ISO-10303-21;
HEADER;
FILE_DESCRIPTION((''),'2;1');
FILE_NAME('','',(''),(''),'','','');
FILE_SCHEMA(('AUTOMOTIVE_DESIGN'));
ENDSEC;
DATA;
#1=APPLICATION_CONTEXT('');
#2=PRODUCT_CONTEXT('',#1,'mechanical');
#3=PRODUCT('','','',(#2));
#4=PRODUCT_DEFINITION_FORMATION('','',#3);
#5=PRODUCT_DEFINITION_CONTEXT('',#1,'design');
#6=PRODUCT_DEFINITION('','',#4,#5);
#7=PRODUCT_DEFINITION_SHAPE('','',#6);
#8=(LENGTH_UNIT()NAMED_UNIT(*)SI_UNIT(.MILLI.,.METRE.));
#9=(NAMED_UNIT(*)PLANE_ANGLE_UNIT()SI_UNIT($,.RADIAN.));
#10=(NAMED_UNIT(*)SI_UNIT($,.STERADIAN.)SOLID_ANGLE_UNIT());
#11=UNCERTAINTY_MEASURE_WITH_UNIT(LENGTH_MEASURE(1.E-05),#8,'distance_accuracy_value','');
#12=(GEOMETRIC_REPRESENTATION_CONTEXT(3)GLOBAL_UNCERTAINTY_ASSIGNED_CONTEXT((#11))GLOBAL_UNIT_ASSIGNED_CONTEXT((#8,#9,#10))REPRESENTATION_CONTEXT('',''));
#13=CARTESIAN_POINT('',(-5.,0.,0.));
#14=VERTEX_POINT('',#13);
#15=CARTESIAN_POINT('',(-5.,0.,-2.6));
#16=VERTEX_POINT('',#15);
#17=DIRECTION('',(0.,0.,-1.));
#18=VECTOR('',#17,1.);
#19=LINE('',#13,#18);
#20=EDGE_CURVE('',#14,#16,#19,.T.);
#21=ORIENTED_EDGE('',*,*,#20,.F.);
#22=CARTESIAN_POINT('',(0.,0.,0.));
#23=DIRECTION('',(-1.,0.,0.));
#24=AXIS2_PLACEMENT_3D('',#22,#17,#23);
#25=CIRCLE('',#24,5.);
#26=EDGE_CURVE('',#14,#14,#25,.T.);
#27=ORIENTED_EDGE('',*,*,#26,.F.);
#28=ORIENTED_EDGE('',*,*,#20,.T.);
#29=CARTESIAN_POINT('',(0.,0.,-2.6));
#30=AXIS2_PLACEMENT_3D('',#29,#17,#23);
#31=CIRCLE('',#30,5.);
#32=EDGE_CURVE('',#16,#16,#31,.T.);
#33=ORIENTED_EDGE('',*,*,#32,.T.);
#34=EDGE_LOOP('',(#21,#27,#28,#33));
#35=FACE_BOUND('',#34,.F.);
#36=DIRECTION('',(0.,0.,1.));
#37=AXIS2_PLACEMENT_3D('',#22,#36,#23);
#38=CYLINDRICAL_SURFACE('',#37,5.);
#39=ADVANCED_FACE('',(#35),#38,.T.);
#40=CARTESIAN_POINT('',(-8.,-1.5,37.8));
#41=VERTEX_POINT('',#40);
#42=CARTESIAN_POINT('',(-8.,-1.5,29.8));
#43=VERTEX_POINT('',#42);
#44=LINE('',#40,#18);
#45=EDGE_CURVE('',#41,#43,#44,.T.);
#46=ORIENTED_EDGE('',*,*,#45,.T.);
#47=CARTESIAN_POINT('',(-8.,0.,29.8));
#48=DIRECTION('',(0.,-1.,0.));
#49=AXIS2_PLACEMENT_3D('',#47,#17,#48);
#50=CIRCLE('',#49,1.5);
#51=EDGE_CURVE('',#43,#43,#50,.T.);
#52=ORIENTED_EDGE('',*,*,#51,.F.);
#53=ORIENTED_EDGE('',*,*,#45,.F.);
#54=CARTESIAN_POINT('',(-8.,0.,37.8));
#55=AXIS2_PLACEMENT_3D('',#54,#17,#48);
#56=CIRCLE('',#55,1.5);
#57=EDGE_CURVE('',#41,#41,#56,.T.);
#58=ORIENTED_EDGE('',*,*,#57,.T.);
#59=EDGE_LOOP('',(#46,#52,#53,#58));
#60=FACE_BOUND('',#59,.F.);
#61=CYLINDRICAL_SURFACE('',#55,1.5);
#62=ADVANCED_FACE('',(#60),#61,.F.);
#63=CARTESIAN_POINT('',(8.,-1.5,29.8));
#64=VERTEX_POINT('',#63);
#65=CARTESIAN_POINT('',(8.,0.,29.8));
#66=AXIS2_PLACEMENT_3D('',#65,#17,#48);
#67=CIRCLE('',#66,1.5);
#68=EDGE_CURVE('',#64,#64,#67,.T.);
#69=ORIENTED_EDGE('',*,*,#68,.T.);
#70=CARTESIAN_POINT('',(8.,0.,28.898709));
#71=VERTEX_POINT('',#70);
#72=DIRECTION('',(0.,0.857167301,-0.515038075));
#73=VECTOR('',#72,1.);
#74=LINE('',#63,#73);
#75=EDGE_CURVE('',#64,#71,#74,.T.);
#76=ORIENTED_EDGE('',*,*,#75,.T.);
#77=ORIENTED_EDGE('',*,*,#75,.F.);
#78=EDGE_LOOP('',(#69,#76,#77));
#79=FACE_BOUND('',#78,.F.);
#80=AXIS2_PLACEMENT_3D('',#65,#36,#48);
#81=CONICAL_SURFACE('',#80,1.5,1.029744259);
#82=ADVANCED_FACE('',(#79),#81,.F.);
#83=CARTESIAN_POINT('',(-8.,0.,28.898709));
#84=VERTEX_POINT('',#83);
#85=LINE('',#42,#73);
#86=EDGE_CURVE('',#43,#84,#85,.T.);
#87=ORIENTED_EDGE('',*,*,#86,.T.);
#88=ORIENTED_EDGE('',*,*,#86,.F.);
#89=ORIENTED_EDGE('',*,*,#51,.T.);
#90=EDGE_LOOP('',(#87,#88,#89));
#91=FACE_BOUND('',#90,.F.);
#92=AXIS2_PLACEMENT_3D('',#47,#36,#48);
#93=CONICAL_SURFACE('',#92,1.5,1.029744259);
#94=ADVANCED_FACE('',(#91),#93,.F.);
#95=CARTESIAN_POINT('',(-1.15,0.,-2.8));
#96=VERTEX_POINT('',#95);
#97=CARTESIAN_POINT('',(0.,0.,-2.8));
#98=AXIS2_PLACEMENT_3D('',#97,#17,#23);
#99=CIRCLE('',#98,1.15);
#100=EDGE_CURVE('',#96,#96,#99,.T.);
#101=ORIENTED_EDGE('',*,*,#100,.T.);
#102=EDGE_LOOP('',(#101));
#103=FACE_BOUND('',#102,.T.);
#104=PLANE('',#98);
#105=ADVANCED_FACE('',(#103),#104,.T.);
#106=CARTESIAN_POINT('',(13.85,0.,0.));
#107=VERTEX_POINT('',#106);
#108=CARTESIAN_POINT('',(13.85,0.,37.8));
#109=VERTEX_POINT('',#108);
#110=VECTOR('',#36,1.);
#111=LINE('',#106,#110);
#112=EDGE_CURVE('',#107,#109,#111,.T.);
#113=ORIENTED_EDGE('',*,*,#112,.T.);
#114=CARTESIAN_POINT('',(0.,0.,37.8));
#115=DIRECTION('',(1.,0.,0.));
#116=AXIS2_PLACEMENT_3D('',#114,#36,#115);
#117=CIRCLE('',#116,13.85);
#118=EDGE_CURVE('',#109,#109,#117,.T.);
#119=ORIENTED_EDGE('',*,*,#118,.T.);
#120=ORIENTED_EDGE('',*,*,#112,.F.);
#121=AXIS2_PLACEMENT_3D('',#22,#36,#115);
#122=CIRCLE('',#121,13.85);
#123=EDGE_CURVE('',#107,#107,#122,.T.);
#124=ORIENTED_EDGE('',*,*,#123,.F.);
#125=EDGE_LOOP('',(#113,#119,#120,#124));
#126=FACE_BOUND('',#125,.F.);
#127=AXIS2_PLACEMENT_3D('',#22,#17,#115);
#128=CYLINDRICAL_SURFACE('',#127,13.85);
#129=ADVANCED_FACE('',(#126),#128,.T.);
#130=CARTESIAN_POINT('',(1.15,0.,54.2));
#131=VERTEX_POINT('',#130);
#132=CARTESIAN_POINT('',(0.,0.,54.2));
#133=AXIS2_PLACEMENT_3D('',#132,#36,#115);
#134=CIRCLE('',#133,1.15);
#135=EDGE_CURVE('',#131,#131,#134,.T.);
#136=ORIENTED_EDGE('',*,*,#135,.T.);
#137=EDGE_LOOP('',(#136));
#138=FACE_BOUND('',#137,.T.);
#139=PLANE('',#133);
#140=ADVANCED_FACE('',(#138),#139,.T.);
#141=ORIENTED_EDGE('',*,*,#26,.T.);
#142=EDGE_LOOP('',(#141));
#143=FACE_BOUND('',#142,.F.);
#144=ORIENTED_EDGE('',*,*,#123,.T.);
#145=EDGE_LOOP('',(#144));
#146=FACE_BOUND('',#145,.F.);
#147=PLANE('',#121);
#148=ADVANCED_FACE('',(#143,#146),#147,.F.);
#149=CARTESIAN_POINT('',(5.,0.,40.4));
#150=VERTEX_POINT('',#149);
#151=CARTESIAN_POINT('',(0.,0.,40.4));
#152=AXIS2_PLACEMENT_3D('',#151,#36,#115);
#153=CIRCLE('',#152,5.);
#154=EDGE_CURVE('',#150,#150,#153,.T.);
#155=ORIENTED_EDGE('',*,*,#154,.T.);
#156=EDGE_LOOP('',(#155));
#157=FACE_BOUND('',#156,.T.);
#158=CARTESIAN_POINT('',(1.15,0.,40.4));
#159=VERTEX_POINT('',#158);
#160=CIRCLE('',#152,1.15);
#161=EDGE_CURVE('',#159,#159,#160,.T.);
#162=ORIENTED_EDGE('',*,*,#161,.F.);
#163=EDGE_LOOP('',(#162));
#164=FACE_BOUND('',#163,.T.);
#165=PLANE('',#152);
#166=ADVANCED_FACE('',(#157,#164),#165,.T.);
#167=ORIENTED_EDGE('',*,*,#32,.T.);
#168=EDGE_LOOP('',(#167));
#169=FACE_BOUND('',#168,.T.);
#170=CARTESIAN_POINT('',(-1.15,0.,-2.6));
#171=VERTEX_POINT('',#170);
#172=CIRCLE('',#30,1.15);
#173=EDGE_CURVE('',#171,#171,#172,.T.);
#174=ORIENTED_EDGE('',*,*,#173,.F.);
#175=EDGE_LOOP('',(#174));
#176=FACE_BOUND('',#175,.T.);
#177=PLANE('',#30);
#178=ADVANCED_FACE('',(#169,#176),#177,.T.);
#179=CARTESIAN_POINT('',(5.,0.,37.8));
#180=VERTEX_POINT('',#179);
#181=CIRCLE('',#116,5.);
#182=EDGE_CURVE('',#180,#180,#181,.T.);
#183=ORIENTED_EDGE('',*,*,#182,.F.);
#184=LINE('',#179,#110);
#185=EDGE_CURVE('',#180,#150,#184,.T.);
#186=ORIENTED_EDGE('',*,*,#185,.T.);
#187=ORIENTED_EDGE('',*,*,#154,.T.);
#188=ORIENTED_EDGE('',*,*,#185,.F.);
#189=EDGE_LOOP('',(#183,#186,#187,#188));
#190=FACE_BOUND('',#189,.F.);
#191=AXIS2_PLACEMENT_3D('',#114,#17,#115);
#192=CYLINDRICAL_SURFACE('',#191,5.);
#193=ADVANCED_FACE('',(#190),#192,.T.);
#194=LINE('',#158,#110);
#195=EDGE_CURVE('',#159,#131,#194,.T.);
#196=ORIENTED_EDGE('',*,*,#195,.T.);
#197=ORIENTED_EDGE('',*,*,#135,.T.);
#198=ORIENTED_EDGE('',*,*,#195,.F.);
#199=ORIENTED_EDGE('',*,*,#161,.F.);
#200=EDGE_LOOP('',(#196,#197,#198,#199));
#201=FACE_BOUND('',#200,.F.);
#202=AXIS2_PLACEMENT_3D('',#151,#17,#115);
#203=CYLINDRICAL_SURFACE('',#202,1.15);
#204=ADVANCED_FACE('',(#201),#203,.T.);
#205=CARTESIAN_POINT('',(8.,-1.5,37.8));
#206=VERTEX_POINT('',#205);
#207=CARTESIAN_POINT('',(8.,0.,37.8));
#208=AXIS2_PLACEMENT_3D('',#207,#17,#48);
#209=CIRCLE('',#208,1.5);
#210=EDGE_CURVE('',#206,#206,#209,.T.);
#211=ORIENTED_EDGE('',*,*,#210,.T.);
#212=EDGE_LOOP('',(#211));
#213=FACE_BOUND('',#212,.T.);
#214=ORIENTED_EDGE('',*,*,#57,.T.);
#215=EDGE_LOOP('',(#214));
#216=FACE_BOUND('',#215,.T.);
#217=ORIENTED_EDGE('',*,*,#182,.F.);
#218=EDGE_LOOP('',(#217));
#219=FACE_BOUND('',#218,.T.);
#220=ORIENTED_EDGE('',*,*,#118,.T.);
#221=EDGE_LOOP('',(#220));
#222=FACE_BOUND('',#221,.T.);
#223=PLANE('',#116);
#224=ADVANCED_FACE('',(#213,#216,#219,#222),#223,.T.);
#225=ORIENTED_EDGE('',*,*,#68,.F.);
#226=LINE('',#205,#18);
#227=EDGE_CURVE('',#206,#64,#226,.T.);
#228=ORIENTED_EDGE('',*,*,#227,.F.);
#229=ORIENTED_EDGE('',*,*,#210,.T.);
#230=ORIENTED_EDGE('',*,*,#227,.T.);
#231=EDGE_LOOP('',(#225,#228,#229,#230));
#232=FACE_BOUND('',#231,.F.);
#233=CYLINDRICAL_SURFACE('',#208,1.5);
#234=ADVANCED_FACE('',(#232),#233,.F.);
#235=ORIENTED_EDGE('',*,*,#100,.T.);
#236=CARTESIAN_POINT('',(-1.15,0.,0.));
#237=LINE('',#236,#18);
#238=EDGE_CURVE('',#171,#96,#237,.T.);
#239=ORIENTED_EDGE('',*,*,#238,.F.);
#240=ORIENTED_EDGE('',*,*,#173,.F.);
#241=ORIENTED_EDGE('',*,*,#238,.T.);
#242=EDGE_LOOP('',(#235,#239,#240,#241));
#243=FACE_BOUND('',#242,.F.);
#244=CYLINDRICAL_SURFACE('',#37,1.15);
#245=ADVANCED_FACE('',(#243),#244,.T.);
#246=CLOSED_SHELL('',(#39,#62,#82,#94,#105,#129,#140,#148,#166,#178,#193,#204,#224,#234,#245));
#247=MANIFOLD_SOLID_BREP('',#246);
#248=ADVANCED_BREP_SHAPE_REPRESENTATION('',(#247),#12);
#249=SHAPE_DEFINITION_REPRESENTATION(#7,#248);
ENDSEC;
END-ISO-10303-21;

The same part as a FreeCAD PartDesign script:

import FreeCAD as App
import Part
import Sketcher

V = App.Vector
Q = App.Units.Quantity

doc = App.newDocument("Part")
body = doc.addObject("PartDesign::Body", "Body")

# Sketch on XY plane
sketch1 = body.newObject("Sketcher::SketchObject", "Sketch")
sketch1.AttachmentSupport = (doc.getObject("XY_Plane"), [""])
sketch1.MapMode = "FlatFace"
sketch1.addGeometry(Part.Circle(V(0, 0, 0), V(0, 0, 1), 13.85), False)
sketch1.addConstraint([
    Sketcher.Constraint("Coincident", 0, 3, -1, 1),
    Sketcher.Constraint("Diameter", 0, Q("27.7 mm")),
])
pad1 = body.newObject("PartDesign::Pad", "Pad")
pad1.Profile = sketch1
pad1.Length = 37.8

# Sketch on XY plane
sketch2 = body.newObject("Sketcher::SketchObject", "Sketch001")
sketch2.AttachmentSupport = (doc.getObject("XY_Plane"), [""])
sketch2.MapMode = "FlatFace"
sketch2.AttachmentOffset = App.Placement(V(0, 0, 37.8), App.Rotation())
sketch2.addGeometry(Part.Circle(V(0, 0, 0), V(0, 0, 1), 5), False)
sketch2.addConstraint([
    Sketcher.Constraint("Coincident", 0, 3, -1, 1),
    Sketcher.Constraint("Diameter", 0, Q("10 mm")),
])
pad2 = body.newObject("PartDesign::Pad", "Pad001")
pad2.Profile = sketch2
pad2.Length = 2.6

# Sketch on XY plane
sketch3 = body.newObject("Sketcher::SketchObject", "Sketch002")
sketch3.AttachmentSupport = (doc.getObject("XY_Plane"), [""])
sketch3.MapMode = "FlatFace"
sketch3.AttachmentOffset = App.Placement(V(0, 0, 40.4), App.Rotation())
sketch3.addGeometry(Part.Circle(V(0, 0, 0), V(0, 0, 1), 1.15), False)
sketch3.addConstraint([
    Sketcher.Constraint("Coincident", 0, 3, -1, 1),
    Sketcher.Constraint("Diameter", 0, Q("2.3 mm")),
])
pad3 = body.newObject("PartDesign::Pad", "Pad002")
pad3.Profile = sketch3
pad3.Length = 13.8

# Sketch on XY plane
sketch4 = body.newObject("Sketcher::SketchObject", "Sketch003")
sketch4.AttachmentSupport = (doc.getObject("XY_Plane"), [""])
sketch4.MapMode = "FlatFace"
sketch4.addGeometry([
    Part.Circle(V(0, 0, 0), V(0, 0, 1), 5),
    Part.Circle(V(0, 0, 0), V(0, 0, 1), 1.15),
], False)
sketch4.addConstraint([
    Sketcher.Constraint("Coincident", 0, 3, -1, 1),
    Sketcher.Constraint("Coincident", 1, 3, -1, 1),
    Sketcher.Constraint("Diameter", 0, Q("10 mm")),
    Sketcher.Constraint("Diameter", 1, Q("2.3 mm")),
])
pad4 = body.newObject("PartDesign::Pad", "Pad003")
pad4.Profile = sketch4
pad4.Length = 2.6
pad4.Reversed = True

# Sketch on XY plane
sketch5 = body.newObject("Sketcher::SketchObject", "Sketch004")
sketch5.AttachmentSupport = (doc.getObject("XY_Plane"), [""])
sketch5.MapMode = "FlatFace"
sketch5.addGeometry(Part.Circle(V(0, 0, 0), V(0, 0, 1), 1.15), False)
sketch5.addConstraint([
    Sketcher.Constraint("Coincident", 0, 3, -1, 1),
    Sketcher.Constraint("Diameter", 0, Q("2.3 mm")),
])
pad5 = body.newObject("PartDesign::Pad", "Pad004")
pad5.Profile = sketch5
pad5.Length = 2.8
pad5.Reversed = True

# Sketch on XY plane
sketch6 = body.newObject("Sketcher::SketchObject", "Sketch005")
sketch6.AttachmentSupport = (doc.getObject("XY_Plane"), [""])
sketch6.MapMode = "FlatFace"
sketch6.AttachmentOffset = App.Placement(V(0, 0, 37.8), App.Rotation())
sketch6.addGeometry([
    Part.Circle(V(-8, 0, 0), V(0, 0, 1), 1.5),
    Part.Circle(V(8, 0, 0), V(0, 0, 1), 1.5),
], False)
sketch6.addConstraint([
    Sketcher.Constraint("Equal", 0, 1),
    Sketcher.Constraint("Symmetric", 0, 3, 1, 3, -1, 1),
    Sketcher.Constraint("PointOnObject", 0, 3, -1),
    Sketcher.Constraint("Diameter", 0, Q("3 mm")),
    Sketcher.Constraint("DistanceX", 0, 3, -1, 1, Q("8 mm")),
])
doc.recompute()
hole = body.newObject("PartDesign::Hole", "Hole")
hole.Profile = sketch6
hole.ThreadType = "None"
hole.Diameter = 3
hole.DepthType = "Dimension"
hole.Depth = 8
hole.DrillPoint = "Angled"
hole.DrillPointAngle = 118

doc.recompute()
